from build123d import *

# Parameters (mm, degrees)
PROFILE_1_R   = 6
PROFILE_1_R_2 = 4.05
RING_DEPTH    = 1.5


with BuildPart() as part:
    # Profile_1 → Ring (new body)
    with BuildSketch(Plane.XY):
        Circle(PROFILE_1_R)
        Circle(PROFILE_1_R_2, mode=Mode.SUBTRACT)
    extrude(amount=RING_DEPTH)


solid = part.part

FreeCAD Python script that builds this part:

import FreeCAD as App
import Part
import Sketcher

V = App.Vector

doc = App.newDocument("Part")
body = doc.addObject("PartDesign::Body", "Body")

# Sketch on XY plane
sketch1 = body.newObject("Sketcher::SketchObject", "Sketch")
sketch1.AttachmentSupport = (doc.getObject("XY_Plane"), [""])
sketch1.MapMode = "FlatFace"
sketch1.addGeometry([
    Part.Circle(V(0, 0, 0), V(0, 0, 1), 6),
    Part.Circle(V(0, 0, 0), V(0, 0, 1), 4),
], False)
sketch1.addConstraint([
    Sketcher.Constraint("Coincident", 0, 3, -1, 1),
    Sketcher.Constraint("Coincident", 1, 3, -1, 1),
    Sketcher.Constraint("Diameter", 0, 12.0),
    Sketcher.Constraint("Diameter", 1, 8.1),
])
pad1 = body.newObject("PartDesign::Pad", "Pad")
pad1.Profile = sketch1
pad1.Length = 1.5

doc.recompute()
